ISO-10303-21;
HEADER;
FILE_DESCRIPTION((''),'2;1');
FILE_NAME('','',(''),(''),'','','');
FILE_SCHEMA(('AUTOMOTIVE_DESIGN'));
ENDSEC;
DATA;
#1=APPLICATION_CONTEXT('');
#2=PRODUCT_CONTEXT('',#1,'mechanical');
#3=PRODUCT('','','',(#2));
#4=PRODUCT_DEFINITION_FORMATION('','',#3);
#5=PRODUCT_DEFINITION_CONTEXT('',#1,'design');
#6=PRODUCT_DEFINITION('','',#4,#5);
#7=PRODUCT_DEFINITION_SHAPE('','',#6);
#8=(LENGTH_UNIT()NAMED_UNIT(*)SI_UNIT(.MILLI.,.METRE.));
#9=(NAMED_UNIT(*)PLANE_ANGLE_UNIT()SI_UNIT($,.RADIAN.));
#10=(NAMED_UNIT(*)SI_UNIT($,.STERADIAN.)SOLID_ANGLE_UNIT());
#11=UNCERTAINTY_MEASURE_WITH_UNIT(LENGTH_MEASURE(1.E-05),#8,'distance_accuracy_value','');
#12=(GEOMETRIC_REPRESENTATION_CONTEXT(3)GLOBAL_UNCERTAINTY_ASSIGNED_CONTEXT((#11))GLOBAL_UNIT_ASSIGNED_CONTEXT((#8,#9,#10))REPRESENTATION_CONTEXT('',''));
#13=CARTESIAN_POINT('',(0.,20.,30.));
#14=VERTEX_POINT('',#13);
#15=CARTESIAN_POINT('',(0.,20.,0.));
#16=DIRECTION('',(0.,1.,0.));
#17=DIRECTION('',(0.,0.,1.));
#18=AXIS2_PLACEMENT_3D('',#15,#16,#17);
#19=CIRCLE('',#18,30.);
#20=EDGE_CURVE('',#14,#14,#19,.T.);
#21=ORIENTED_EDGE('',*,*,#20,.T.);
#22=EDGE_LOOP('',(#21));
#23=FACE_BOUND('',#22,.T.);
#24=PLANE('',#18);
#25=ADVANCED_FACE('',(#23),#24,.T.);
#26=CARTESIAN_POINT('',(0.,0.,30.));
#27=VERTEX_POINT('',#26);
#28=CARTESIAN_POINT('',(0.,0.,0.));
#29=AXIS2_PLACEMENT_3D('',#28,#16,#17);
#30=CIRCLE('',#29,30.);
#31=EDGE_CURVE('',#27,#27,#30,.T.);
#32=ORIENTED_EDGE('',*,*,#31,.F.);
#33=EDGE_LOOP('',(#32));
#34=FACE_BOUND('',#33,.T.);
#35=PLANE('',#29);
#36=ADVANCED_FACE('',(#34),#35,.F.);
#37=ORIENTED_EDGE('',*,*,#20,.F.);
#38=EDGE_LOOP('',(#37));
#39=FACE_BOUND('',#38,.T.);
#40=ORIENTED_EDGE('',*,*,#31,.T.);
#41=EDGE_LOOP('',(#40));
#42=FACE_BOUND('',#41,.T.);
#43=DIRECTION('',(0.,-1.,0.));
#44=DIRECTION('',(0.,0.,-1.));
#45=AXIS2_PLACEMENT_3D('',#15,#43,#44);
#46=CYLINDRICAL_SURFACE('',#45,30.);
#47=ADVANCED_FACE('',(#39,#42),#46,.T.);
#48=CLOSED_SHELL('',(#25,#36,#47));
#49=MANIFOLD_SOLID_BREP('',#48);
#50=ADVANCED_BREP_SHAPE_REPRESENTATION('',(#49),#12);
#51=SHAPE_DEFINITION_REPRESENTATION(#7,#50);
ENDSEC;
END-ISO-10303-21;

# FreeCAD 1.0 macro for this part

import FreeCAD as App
import Part
import Sketcher
from FreeCAD import Vector
Q = App.Units.Quantity

doc = App.newDocument("Part")
body = doc.addObject("PartDesign::Body", "Body")

# Sketch on XZ plane
sketch1 = doc.addObject("Sketcher::SketchObject", "Sketch")
body.addObject(sketch1)
sketch1.AttachmentSupport = (doc.XZ_Plane, [""])
sketch1.MapMode = "FlatFace"
sketch1.addGeometry(Part.Circle(Vector(0, 0, 0), Vector(0, 0, 1), 30), False)
sketch1.addConstraint(Sketcher.Constraint("Coincident", 0, 3, -1, 1))
sketch1.addConstraint(Sketcher.Constraint("Diameter", 0, Q("60 mm")))
pad1 = doc.addObject("PartDesign::Pad", "Pad")
body.addObject(pad1)
pad1.Profile = sketch1
pad1.Length = 20
pad1.Reversed = True

doc.recompute()
